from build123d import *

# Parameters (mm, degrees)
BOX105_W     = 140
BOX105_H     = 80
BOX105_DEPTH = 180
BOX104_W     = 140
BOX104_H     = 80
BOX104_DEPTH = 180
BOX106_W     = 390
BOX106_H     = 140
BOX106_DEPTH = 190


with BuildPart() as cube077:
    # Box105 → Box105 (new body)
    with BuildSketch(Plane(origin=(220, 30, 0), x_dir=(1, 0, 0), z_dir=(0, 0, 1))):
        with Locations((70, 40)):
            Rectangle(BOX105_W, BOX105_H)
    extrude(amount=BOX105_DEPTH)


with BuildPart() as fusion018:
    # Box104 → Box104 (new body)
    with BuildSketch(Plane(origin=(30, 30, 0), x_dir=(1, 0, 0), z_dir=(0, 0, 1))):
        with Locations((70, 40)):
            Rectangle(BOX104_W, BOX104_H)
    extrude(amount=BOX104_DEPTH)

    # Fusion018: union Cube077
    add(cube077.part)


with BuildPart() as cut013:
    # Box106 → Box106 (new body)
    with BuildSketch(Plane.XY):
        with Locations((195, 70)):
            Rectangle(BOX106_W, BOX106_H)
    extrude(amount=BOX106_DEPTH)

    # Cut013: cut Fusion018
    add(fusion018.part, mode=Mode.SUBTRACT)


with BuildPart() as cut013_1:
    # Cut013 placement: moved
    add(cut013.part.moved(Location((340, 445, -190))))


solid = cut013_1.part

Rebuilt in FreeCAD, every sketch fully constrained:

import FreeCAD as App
import Part
import Sketcher

V = App.Vector


def add_polygon(sketch, points):
    """Adds a closed chain of lines whose ends are joined by coincident constraints."""
    first, n = sketch.GeometryCount, len(points)
    for a, b in zip(points, points[1:] + points[:1]):
        sketch.addGeometry(Part.LineSegment(App.Vector(*a, 0), App.Vector(*b, 0)), False)
    for i in range(n):
        sketch.addConstraint(Sketcher.Constraint("Coincident", first + i, 2, first + (i + 1) % n, 1))

doc = App.newDocument("Part")
body = doc.addObject("PartDesign::Body", "Body")

# Sketch on XY plane
sketch1 = body.newObject("Sketcher::SketchObject", "Sketch")
sketch1.AttachmentSupport = (doc.getObject("XY_Plane"), [""])
sketch1.MapMode = "FlatFace"
add_polygon(sketch1, [(220, 110), (220, 30), (360, 30), (360, 110)])  # lines 0-3
sketch1.addConstraint([
    Sketcher.Constraint("Vertical", 0),
    Sketcher.Constraint("Horizontal", 1),
    Sketcher.Constraint("Vertical", 2),
    Sketcher.Constraint("Horizontal", 3),
    Sketcher.Constraint("DistanceX", 1, 1, 1, 2, 140.0),
    Sketcher.Constraint("DistanceY", 0, 2, 0, 1, 80.0),
    Sketcher.Constraint("DistanceX", -1, 1, 0, 2, 220.0),
    Sketcher.Constraint("DistanceY", -1, 1, 0, 2, 30.0),
])
pad1 = body.newObject("PartDesign::Pad", "Pad")
pad1.Profile = sketch1
pad1.Length = 180
body2 = doc.addObject("PartDesign::Body", "Body001")
body2.AllowCompound = True

# Sketch on XY plane
sketch2 = body2.newObject("Sketcher::SketchObject", "Sketch001")
sketch2.AttachmentSupport = (doc.getObject("XY_Plane001"), [""])
sketch2.MapMode = "FlatFace"
add_polygon(sketch2, [(30, 110), (30, 30), (170, 30), (170, 110)])  # lines 0-3
sketch2.addConstraint([
    Sketcher.Constraint("Vertical", 0),
    Sketcher.Constraint("Horizontal", 1),
    Sketcher.Constraint("Vertical", 2),
    Sketcher.Constraint("Horizontal", 3),
    Sketcher.Constraint("DistanceX", 1, 1, 1, 2, 140.0),
    Sketcher.Constraint("DistanceY", 0, 2, 0, 1, 80.0),
    Sketcher.Constraint("DistanceX", -1, 1, 0, 2, 30.0),
    Sketcher.Constraint("DistanceY", -1, 1, 0, 2, 30.0),
])
pad2 = body2.newObject("PartDesign::Pad", "Pad001")
pad2.Profile = sketch2
pad2.Length = 180
doc.recompute()

boolean = body2.newObject("PartDesign::Boolean", "Boolean")
boolean.Type = "Fuse"
boolean.addObjects([body])
body3 = doc.addObject("PartDesign::Body", "Body002")

# Sketch on XY plane
sketch3 = body3.newObject("Sketcher::SketchObject", "Sketch002")
sketch3.AttachmentSupport = (doc.getObject("XY_Plane002"), [""])
sketch3.MapMode = "FlatFace"
add_polygon(sketch3, [(0, 140), (0, 0), (390, 0), (390, 140)])  # lines 0-3
sketch3.addConstraint([
    Sketcher.Constraint("Vertical", 0),
    Sketcher.Constraint("Horizontal", 1),
    Sketcher.Constraint("Vertical", 2),
    Sketcher.Constraint("Horizontal", 3),
    Sketcher.Constraint("Coincident", 0, 2, -1, 1),
    Sketcher.Constraint("DistanceX", 1, 1, 1, 2, 390.0),
    Sketcher.Constraint("DistanceY", 0, 2, 0, 1, 140.0),
])
pad3 = body3.newObject("PartDesign::Pad", "Pad002")
pad3.Profile = sketch3
pad3.Length = 190
doc.recompute()

boolean2 = body3.newObject("PartDesign::Boolean", "Boolean001")
boolean2.Type = "Cut"
boolean2.addObjects([body2])
body4 = doc.addObject("PartDesign::Body", "Body003")
doc.recompute()

body3.Placement = App.Placement(V(340, 445, -190), App.Rotation(V(0, 0, 1), 0))
boolean3 = body4.newObject("PartDesign::Boolean", "Boolean002")
boolean3.Type = "Fuse"
boolean3.addObjects([body3])

doc.recompute()
